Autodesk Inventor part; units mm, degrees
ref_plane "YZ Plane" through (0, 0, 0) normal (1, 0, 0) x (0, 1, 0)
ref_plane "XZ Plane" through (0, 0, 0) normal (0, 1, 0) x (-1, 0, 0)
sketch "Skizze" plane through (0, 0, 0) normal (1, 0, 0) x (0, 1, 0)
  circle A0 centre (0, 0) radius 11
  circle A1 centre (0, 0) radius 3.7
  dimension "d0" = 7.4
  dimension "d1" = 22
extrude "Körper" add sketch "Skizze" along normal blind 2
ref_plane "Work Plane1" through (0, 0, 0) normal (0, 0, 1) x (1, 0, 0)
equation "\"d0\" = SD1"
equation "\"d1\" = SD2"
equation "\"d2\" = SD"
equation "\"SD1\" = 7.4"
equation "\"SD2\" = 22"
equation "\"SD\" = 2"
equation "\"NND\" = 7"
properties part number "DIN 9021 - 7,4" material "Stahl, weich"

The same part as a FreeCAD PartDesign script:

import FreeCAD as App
import Part
import Sketcher
Q = App.Units.Quantity

doc = App.newDocument("Part")
body = doc.addObject("PartDesign::Body", "Body")

# Sketch on YZ plane
sketch1 = body.newObject("Sketcher::SketchObject", "Sketch")
sketch1.AttachmentSupport = (doc.getObject("YZ_Plane"), [""])
sketch1.MapMode = "FlatFace"
sketch1.addGeometry([
    Part.Circle(App.Vector(0, 0, 0), App.Vector(0, 0, 1), 11),
    Part.Circle(App.Vector(0, 0, 0), App.Vector(0, 0, 1), 3.7),
], False)
sketch1.addConstraint([
    Sketcher.Constraint("Coincident", 0, 3, -1, 1),
    Sketcher.Constraint("Coincident", 1, 3, -1, 1),
    Sketcher.Constraint("Diameter", 0, Q("22 mm")),
    Sketcher.Constraint("Diameter", 1, Q("7.4 mm")),
])
pad1 = body.newObject("PartDesign::Pad", "Pad")
pad1.Profile = sketch1
pad1.Length = 2

doc.recompute()
